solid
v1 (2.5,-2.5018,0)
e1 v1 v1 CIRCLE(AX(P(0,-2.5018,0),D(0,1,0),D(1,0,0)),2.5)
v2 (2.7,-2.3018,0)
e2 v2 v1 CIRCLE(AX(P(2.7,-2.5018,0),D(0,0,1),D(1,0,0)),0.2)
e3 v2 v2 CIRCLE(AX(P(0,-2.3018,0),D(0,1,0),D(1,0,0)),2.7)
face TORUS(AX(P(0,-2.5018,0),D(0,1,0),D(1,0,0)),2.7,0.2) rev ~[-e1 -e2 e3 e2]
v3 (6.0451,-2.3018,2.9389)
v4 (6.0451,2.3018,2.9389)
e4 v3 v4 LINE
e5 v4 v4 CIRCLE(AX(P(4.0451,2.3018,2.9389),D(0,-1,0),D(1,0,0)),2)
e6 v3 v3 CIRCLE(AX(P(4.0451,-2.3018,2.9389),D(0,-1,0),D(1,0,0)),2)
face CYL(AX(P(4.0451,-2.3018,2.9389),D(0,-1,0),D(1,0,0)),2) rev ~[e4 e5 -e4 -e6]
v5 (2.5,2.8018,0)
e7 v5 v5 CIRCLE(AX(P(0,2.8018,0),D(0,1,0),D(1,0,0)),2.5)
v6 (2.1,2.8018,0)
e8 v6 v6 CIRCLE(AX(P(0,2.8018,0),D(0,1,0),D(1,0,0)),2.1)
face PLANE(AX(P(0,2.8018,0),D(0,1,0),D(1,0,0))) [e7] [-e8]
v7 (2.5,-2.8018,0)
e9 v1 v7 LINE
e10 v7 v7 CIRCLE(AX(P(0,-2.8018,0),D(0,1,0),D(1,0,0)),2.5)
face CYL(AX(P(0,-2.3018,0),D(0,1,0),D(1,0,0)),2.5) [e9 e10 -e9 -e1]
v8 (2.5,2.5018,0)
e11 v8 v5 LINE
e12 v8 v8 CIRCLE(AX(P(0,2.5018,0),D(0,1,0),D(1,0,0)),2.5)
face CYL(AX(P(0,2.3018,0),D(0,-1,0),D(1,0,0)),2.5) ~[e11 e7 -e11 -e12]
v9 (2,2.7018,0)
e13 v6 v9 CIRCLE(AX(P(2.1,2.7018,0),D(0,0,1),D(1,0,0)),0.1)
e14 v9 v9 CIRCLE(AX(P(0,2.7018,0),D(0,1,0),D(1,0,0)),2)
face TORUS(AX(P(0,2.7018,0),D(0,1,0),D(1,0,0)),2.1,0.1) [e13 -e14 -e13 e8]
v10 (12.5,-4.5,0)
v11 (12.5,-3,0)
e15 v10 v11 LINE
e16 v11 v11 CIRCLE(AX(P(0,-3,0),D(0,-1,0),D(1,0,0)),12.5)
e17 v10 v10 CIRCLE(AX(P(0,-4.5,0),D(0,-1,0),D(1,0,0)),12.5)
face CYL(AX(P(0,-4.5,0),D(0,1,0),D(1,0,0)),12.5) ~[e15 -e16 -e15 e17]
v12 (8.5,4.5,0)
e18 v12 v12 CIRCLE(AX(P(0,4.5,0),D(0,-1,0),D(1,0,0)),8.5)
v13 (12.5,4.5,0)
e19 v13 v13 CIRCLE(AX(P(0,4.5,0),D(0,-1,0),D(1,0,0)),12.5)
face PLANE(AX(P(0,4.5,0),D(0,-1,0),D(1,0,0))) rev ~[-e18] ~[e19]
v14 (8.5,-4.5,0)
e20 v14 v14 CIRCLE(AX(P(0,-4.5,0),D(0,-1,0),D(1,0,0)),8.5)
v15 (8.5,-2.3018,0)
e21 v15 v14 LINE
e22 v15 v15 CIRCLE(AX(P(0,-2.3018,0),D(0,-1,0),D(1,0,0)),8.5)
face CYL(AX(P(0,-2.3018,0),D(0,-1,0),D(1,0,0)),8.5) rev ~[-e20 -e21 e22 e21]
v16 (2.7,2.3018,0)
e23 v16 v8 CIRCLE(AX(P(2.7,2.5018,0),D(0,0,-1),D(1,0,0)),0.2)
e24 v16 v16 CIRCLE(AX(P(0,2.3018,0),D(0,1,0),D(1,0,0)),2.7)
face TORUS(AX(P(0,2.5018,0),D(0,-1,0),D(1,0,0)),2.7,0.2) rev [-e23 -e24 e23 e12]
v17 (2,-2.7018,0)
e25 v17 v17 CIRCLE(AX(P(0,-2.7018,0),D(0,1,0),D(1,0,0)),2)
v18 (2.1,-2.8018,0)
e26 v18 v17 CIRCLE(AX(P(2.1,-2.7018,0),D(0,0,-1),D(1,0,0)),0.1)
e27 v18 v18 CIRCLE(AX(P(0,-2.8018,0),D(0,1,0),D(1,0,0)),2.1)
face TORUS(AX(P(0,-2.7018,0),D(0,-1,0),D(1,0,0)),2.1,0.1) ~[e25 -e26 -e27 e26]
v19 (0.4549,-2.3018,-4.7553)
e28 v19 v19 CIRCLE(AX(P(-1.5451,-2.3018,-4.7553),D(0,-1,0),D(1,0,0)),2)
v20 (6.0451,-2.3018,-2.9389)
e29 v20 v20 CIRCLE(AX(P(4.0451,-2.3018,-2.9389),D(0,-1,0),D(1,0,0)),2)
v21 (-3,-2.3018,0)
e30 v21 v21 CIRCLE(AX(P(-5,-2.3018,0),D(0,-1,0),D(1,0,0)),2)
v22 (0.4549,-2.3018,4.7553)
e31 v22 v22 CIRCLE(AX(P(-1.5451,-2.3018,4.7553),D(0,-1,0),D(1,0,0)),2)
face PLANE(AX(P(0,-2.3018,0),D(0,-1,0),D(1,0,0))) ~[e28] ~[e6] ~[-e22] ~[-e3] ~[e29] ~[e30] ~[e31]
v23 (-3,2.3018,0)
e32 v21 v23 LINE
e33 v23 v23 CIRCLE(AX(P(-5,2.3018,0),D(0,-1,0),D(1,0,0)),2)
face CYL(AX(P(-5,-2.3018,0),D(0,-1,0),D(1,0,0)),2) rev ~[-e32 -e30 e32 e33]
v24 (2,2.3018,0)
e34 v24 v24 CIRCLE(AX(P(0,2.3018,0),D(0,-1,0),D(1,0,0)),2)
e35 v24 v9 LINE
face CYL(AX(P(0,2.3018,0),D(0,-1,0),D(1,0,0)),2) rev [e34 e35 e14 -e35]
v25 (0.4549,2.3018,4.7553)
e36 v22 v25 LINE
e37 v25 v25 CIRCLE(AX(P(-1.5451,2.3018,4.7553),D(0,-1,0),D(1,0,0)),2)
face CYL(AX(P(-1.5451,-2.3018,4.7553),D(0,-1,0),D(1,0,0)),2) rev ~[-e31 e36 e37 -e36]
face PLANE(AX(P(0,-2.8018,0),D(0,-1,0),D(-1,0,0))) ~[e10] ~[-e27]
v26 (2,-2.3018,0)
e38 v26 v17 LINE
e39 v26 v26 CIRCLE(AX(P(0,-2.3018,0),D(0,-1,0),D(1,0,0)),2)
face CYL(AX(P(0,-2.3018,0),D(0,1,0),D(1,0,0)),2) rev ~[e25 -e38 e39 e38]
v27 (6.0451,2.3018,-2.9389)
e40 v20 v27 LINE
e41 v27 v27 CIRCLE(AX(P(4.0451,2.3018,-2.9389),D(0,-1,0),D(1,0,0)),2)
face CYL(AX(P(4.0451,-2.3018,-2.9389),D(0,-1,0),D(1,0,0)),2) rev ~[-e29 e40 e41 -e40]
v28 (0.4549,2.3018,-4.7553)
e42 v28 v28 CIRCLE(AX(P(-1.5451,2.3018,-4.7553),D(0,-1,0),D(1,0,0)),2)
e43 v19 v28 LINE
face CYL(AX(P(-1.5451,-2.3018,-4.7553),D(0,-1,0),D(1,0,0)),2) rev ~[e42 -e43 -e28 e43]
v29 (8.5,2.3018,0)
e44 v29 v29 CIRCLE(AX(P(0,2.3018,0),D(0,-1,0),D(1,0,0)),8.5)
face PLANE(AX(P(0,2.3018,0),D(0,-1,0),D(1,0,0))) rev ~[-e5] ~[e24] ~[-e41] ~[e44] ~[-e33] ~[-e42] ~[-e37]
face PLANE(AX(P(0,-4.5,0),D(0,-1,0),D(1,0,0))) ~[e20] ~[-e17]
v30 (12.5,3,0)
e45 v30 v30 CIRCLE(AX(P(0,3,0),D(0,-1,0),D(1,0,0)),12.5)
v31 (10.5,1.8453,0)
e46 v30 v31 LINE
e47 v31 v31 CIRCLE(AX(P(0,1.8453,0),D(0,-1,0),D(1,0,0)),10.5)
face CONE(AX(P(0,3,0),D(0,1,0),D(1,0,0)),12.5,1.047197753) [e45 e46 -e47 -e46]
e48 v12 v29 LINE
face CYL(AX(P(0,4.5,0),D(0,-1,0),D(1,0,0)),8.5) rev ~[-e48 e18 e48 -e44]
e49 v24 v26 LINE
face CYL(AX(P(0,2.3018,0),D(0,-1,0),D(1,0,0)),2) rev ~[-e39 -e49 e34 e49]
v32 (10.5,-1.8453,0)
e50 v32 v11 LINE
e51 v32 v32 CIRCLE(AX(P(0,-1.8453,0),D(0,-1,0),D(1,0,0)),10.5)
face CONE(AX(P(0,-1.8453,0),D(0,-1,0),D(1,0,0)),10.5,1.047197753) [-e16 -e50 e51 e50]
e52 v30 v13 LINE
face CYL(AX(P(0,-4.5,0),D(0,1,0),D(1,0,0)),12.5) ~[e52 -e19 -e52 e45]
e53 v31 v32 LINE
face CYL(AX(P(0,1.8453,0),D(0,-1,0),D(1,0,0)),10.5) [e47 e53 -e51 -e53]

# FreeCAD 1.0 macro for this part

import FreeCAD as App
import Part
import Sketcher
Q = App.Units.Quantity


def edges_at(feature, points):
    """Names of the edges that pass closest to the given points."""
    edges = feature.Shape.Edges
    near = lambda p: min(range(len(edges)), key=lambda i: edges[i].distToShape(Part.Vertex(*p))[0])
    return sorted({f"Edge{near(p) + 1}" for p in points})


def add_polygon(sketch, points):
    """Adds a closed chain of lines whose ends are joined by coincident constraints."""
    first, n = sketch.GeometryCount, len(points)
    for a, b in zip(points, points[1:] + points[:1]):
        sketch.addGeometry(Part.LineSegment(App.Vector(*a, 0), App.Vector(*b, 0)), False)
    for i in range(n):
        sketch.addConstraint(Sketcher.Constraint("Coincident", first + i, 2, first + (i + 1) % n, 1))

doc = App.newDocument("Part")
params = doc.addObject("Spreadsheet::Sheet", "Params")
for row, (alias, value) in enumerate([
    ("sketch1_width", "4 mm"),
    ("sketch1_height", "1.5 mm"),
    ("sketch1_width2", "6.5 mm"),
    ("revolution_angle", "360 deg"),
    ("sketch2_diameter", "4 mm"),
    ("sketch3_diameter", "5 mm"),
    ("sketch3_diameter2", "4 mm"),
    ("pad1_length", "0.5 mm"),
    ("fillet_radius", "0.2 mm"),
    ("fillet2_radius", "0.2 mm"),
    ("fillet3_radius", "0.1 mm"),
], start=1):
    params.set(f"A{row}", alias)
    params.set(f"B{row}", "=" + value)
    params.setAlias(f"B{row}", alias)

body = doc.addObject("PartDesign::Body", "Body")

sketch1 = doc.addObject("Sketcher::SketchObject", "Sketch")
body.addObject(sketch1)
sketch1.AttachmentSupport = (doc.XY_Plane, [""])
sketch1.MapMode = "FlatFace"
add_polygon(sketch1, [(8.5, 2.3018), (2, 2.3018), (2, -2.3018), (8.5, -2.3018), (8.5, -4.5), (12.5, -4.5), (12.5, -3), (10.5, -1.8453), (10.5, 1.8453), (12.5, 3), (12.5, 4.5), (8.5, 4.5)])
sketch1.addConstraint(Sketcher.Constraint("Horizontal", 0))
sketch1.addConstraint(Sketcher.Constraint("Vertical", 1))
sketch1.addConstraint(Sketcher.Constraint("Horizontal", 2))
sketch1.addConstraint(Sketcher.Constraint("Vertical", 3))
sketch1.addConstraint(Sketcher.Constraint("Horizontal", 4))
sketch1.addConstraint(Sketcher.Constraint("Vertical", 5))
sketch1.addConstraint(Sketcher.Constraint("Vertical", 7))
sketch1.addConstraint(Sketcher.Constraint("Vertical", 9))
sketch1.addConstraint(Sketcher.Constraint("Horizontal", 10))
sketch1.addConstraint(Sketcher.Constraint("Vertical", 11))
sketch1.addConstraint(Sketcher.Constraint("Symmetric", 5, 2, 8, 2, -1))
sketch1.addConstraint(Sketcher.Constraint("Symmetric", 3, 2, 10, 2, -1))
sketch1.addConstraint(Sketcher.Constraint("Equal", 3, 11))
sketch1.addConstraint(Sketcher.Constraint("Equal", 6, 8))
sketch1.addConstraint(Sketcher.Constraint("DistanceX", 4, 1, 4, 2, Q("4 mm")))
sketch1.addConstraint(Sketcher.Constraint("DistanceY", 5, 1, 5, 2, Q("1.5 mm")))
sketch1.addConstraint(Sketcher.Constraint("DistanceX", -1, 1, 0, 2, Q("2 mm")))
sketch1.addConstraint(Sketcher.Constraint("DistanceX", 2, 2, 6, 2, Q("2 mm")))
sketch1.addConstraint(Sketcher.Constraint("Angle", 6, Q("150 deg")))
sketch1.addConstraint(Sketcher.Constraint("DistanceX", 0, 2, 0, 1, Q("6.5 mm")))
sketch1.addConstraint(Sketcher.Constraint("DistanceY", 5, 2, -1, 1, Q("3 mm")))
sketch1.addConstraint(Sketcher.Constraint("DistanceY", 1, 2, 1, 1, Q("4.6036 mm")))
sketch1.setExpression("Constraints[26]", "Params.sketch1_width")
sketch1.setExpression("Constraints[27]", "Params.sketch1_height")
sketch1.setExpression("Constraints[31]", "Params.sketch1_width2")
revolution = doc.addObject("PartDesign::Revolution", "Revolution")
body.addObject(revolution)
revolution.Profile = sketch1
revolution.ReferenceAxis = (sketch1, ["V_Axis"])
revolution.setExpression("Angle", "Params.revolution_angle")

sketch2 = doc.addObject("Sketcher::SketchObject", "Sketch001")
body.addObject(sketch2)
sketch2.AttachmentSupport = (doc.XZ_Plane, [""])
sketch2.MapMode = "FlatFace"
sketch2.AttachmentOffset = App.Placement(App.Vector(0, 0, 2.3018), App.Rotation())
sketch2.addGeometry(Part.Circle(App.Vector(-5, 0, 0), App.Vector(0, 0, 1), 2), False)
sketch2.addGeometry(Part.Circle(App.Vector(-1.5451, -4.7553, 0), App.Vector(0, 0, 1), 2), False)
sketch2.addGeometry(Part.Circle(App.Vector(4.0451, -2.9389, 0), App.Vector(0, 0, 1), 2), False)
sketch2.addGeometry(Part.Circle(App.Vector(4.0451, 2.9389, 0), App.Vector(0, 0, 1), 2), False)
sketch2.addGeometry(Part.Circle(App.Vector(-1.5451, 4.7553, 0), App.Vector(0, 0, 1), 2), False)
sketch2.addConstraint(Sketcher.Constraint("Equal", 0, 1))
sketch2.addConstraint(Sketcher.Constraint("Equal", 1, 2))
sketch2.addConstraint(Sketcher.Constraint("Equal", 2, 3))
sketch2.addConstraint(Sketcher.Constraint("Equal", 3, 4))
sketch2.addConstraint(Sketcher.Constraint("Symmetric", 2, 3, 3, 3, -1))
sketch2.addConstraint(Sketcher.Constraint("Symmetric", 1, 3, 4, 3, -1))
sketch2.addConstraint(Sketcher.Constraint("PointOnObject", 0, 3, -1))
sketch2.addConstraint(Sketcher.Constraint("Diameter", 0, Q("4 mm")))
sketch2.addConstraint(Sketcher.Constraint("DistanceX", 0, 3, -1, 1, Q("5 mm")))
sketch2.addConstraint(Sketcher.Constraint("DistanceX", 1, 3, -1, 1, Q("1.545 mm")))
sketch2.addConstraint(Sketcher.Constraint("DistanceX", -1, 1, 2, 3, Q("4.045 mm")))
sketch2.addConstraint(Sketcher.Constraint("DistanceY", 2, 3, -1, 1, Q("2.939 mm")))
sketch2.addConstraint(Sketcher.Constraint("DistanceY", 1, 3, -1, 1, Q("4.7553 mm")))
sketch2.setExpression("Constraints[7]", "Params.sketch2_diameter")
pocket1 = doc.addObject("PartDesign::Pocket", "Pocket")
body.addObject(pocket1)
pocket1.Profile = sketch2
pocket1.Type = "ThroughAll"

sketch3 = doc.addObject("Sketcher::SketchObject", "Sketch002")
body.addObject(sketch3)
sketch3.AttachmentSupport = (doc.XZ_Plane, [""])
sketch3.MapMode = "FlatFace"
sketch3.AttachmentOffset = App.Placement(App.Vector(0, 0, -2.3018), App.Rotation())
sketch3.addGeometry(Part.Circle(App.Vector(0, 0, 0), App.Vector(0, 0, 1), 2.5), False)
sketch3.addGeometry(Part.Circle(App.Vector(0, 0, 0), App.Vector(0, 0, 1), 2), False)
sketch3.addConstraint(Sketcher.Constraint("Coincident", 0, 3, -1, 1))
sketch3.addConstraint(Sketcher.Constraint("Coincident", 1, 3, -1, 1))
sketch3.addConstraint(Sketcher.Constraint("Diameter", 0, Q("5 mm")))
sketch3.addConstraint(Sketcher.Constraint("Diameter", 1, Q("4 mm")))
sketch3.setExpression("Constraints[2]", "Params.sketch3_diameter")
sketch3.setExpression("Constraints[3]", "Params.sketch3_diameter2")
pad1 = doc.addObject("PartDesign::Pad", "Pad")
body.addObject(pad1)
pad1.Profile = sketch3
pad1.setExpression("Length", "Params.pad1_length")
pad1.Reversed = True
doc.recompute()

mirrored = doc.addObject("PartDesign::Mirrored", "Mirrored")
body.addObject(mirrored)
mirrored.Originals = [pad1]
mirrored.MirrorPlane = (doc.XZ_Plane, [""])
body.Tip = mirrored
doc.recompute()

fillet = doc.addObject("PartDesign::Fillet", "Fillet")
body.addObject(fillet)
fillet.Base = (mirrored, edges_at(mirrored, [(-2.5, 2.302, 0)]))
fillet.setExpression("Radius", "Params.fillet_radius")
doc.recompute()

fillet2 = doc.addObject("PartDesign::Fillet", "Fillet001")
body.addObject(fillet2)
fillet2.Base = (fillet, edges_at(fillet, [(-2.5, -2.302, 0)]))
fillet2.setExpression("Radius", "Params.fillet2_radius")
doc.recompute()

fillet3 = doc.addObject("PartDesign::Fillet", "Fillet002")
body.addObject(fillet3)
fillet3.Base = (fillet2, edges_at(fillet2, [(-2, 2.802, 0), (-2, -2.802, 0)]))
fillet3.setExpression("Radius", "Params.fillet3_radius")

doc.recompute()
